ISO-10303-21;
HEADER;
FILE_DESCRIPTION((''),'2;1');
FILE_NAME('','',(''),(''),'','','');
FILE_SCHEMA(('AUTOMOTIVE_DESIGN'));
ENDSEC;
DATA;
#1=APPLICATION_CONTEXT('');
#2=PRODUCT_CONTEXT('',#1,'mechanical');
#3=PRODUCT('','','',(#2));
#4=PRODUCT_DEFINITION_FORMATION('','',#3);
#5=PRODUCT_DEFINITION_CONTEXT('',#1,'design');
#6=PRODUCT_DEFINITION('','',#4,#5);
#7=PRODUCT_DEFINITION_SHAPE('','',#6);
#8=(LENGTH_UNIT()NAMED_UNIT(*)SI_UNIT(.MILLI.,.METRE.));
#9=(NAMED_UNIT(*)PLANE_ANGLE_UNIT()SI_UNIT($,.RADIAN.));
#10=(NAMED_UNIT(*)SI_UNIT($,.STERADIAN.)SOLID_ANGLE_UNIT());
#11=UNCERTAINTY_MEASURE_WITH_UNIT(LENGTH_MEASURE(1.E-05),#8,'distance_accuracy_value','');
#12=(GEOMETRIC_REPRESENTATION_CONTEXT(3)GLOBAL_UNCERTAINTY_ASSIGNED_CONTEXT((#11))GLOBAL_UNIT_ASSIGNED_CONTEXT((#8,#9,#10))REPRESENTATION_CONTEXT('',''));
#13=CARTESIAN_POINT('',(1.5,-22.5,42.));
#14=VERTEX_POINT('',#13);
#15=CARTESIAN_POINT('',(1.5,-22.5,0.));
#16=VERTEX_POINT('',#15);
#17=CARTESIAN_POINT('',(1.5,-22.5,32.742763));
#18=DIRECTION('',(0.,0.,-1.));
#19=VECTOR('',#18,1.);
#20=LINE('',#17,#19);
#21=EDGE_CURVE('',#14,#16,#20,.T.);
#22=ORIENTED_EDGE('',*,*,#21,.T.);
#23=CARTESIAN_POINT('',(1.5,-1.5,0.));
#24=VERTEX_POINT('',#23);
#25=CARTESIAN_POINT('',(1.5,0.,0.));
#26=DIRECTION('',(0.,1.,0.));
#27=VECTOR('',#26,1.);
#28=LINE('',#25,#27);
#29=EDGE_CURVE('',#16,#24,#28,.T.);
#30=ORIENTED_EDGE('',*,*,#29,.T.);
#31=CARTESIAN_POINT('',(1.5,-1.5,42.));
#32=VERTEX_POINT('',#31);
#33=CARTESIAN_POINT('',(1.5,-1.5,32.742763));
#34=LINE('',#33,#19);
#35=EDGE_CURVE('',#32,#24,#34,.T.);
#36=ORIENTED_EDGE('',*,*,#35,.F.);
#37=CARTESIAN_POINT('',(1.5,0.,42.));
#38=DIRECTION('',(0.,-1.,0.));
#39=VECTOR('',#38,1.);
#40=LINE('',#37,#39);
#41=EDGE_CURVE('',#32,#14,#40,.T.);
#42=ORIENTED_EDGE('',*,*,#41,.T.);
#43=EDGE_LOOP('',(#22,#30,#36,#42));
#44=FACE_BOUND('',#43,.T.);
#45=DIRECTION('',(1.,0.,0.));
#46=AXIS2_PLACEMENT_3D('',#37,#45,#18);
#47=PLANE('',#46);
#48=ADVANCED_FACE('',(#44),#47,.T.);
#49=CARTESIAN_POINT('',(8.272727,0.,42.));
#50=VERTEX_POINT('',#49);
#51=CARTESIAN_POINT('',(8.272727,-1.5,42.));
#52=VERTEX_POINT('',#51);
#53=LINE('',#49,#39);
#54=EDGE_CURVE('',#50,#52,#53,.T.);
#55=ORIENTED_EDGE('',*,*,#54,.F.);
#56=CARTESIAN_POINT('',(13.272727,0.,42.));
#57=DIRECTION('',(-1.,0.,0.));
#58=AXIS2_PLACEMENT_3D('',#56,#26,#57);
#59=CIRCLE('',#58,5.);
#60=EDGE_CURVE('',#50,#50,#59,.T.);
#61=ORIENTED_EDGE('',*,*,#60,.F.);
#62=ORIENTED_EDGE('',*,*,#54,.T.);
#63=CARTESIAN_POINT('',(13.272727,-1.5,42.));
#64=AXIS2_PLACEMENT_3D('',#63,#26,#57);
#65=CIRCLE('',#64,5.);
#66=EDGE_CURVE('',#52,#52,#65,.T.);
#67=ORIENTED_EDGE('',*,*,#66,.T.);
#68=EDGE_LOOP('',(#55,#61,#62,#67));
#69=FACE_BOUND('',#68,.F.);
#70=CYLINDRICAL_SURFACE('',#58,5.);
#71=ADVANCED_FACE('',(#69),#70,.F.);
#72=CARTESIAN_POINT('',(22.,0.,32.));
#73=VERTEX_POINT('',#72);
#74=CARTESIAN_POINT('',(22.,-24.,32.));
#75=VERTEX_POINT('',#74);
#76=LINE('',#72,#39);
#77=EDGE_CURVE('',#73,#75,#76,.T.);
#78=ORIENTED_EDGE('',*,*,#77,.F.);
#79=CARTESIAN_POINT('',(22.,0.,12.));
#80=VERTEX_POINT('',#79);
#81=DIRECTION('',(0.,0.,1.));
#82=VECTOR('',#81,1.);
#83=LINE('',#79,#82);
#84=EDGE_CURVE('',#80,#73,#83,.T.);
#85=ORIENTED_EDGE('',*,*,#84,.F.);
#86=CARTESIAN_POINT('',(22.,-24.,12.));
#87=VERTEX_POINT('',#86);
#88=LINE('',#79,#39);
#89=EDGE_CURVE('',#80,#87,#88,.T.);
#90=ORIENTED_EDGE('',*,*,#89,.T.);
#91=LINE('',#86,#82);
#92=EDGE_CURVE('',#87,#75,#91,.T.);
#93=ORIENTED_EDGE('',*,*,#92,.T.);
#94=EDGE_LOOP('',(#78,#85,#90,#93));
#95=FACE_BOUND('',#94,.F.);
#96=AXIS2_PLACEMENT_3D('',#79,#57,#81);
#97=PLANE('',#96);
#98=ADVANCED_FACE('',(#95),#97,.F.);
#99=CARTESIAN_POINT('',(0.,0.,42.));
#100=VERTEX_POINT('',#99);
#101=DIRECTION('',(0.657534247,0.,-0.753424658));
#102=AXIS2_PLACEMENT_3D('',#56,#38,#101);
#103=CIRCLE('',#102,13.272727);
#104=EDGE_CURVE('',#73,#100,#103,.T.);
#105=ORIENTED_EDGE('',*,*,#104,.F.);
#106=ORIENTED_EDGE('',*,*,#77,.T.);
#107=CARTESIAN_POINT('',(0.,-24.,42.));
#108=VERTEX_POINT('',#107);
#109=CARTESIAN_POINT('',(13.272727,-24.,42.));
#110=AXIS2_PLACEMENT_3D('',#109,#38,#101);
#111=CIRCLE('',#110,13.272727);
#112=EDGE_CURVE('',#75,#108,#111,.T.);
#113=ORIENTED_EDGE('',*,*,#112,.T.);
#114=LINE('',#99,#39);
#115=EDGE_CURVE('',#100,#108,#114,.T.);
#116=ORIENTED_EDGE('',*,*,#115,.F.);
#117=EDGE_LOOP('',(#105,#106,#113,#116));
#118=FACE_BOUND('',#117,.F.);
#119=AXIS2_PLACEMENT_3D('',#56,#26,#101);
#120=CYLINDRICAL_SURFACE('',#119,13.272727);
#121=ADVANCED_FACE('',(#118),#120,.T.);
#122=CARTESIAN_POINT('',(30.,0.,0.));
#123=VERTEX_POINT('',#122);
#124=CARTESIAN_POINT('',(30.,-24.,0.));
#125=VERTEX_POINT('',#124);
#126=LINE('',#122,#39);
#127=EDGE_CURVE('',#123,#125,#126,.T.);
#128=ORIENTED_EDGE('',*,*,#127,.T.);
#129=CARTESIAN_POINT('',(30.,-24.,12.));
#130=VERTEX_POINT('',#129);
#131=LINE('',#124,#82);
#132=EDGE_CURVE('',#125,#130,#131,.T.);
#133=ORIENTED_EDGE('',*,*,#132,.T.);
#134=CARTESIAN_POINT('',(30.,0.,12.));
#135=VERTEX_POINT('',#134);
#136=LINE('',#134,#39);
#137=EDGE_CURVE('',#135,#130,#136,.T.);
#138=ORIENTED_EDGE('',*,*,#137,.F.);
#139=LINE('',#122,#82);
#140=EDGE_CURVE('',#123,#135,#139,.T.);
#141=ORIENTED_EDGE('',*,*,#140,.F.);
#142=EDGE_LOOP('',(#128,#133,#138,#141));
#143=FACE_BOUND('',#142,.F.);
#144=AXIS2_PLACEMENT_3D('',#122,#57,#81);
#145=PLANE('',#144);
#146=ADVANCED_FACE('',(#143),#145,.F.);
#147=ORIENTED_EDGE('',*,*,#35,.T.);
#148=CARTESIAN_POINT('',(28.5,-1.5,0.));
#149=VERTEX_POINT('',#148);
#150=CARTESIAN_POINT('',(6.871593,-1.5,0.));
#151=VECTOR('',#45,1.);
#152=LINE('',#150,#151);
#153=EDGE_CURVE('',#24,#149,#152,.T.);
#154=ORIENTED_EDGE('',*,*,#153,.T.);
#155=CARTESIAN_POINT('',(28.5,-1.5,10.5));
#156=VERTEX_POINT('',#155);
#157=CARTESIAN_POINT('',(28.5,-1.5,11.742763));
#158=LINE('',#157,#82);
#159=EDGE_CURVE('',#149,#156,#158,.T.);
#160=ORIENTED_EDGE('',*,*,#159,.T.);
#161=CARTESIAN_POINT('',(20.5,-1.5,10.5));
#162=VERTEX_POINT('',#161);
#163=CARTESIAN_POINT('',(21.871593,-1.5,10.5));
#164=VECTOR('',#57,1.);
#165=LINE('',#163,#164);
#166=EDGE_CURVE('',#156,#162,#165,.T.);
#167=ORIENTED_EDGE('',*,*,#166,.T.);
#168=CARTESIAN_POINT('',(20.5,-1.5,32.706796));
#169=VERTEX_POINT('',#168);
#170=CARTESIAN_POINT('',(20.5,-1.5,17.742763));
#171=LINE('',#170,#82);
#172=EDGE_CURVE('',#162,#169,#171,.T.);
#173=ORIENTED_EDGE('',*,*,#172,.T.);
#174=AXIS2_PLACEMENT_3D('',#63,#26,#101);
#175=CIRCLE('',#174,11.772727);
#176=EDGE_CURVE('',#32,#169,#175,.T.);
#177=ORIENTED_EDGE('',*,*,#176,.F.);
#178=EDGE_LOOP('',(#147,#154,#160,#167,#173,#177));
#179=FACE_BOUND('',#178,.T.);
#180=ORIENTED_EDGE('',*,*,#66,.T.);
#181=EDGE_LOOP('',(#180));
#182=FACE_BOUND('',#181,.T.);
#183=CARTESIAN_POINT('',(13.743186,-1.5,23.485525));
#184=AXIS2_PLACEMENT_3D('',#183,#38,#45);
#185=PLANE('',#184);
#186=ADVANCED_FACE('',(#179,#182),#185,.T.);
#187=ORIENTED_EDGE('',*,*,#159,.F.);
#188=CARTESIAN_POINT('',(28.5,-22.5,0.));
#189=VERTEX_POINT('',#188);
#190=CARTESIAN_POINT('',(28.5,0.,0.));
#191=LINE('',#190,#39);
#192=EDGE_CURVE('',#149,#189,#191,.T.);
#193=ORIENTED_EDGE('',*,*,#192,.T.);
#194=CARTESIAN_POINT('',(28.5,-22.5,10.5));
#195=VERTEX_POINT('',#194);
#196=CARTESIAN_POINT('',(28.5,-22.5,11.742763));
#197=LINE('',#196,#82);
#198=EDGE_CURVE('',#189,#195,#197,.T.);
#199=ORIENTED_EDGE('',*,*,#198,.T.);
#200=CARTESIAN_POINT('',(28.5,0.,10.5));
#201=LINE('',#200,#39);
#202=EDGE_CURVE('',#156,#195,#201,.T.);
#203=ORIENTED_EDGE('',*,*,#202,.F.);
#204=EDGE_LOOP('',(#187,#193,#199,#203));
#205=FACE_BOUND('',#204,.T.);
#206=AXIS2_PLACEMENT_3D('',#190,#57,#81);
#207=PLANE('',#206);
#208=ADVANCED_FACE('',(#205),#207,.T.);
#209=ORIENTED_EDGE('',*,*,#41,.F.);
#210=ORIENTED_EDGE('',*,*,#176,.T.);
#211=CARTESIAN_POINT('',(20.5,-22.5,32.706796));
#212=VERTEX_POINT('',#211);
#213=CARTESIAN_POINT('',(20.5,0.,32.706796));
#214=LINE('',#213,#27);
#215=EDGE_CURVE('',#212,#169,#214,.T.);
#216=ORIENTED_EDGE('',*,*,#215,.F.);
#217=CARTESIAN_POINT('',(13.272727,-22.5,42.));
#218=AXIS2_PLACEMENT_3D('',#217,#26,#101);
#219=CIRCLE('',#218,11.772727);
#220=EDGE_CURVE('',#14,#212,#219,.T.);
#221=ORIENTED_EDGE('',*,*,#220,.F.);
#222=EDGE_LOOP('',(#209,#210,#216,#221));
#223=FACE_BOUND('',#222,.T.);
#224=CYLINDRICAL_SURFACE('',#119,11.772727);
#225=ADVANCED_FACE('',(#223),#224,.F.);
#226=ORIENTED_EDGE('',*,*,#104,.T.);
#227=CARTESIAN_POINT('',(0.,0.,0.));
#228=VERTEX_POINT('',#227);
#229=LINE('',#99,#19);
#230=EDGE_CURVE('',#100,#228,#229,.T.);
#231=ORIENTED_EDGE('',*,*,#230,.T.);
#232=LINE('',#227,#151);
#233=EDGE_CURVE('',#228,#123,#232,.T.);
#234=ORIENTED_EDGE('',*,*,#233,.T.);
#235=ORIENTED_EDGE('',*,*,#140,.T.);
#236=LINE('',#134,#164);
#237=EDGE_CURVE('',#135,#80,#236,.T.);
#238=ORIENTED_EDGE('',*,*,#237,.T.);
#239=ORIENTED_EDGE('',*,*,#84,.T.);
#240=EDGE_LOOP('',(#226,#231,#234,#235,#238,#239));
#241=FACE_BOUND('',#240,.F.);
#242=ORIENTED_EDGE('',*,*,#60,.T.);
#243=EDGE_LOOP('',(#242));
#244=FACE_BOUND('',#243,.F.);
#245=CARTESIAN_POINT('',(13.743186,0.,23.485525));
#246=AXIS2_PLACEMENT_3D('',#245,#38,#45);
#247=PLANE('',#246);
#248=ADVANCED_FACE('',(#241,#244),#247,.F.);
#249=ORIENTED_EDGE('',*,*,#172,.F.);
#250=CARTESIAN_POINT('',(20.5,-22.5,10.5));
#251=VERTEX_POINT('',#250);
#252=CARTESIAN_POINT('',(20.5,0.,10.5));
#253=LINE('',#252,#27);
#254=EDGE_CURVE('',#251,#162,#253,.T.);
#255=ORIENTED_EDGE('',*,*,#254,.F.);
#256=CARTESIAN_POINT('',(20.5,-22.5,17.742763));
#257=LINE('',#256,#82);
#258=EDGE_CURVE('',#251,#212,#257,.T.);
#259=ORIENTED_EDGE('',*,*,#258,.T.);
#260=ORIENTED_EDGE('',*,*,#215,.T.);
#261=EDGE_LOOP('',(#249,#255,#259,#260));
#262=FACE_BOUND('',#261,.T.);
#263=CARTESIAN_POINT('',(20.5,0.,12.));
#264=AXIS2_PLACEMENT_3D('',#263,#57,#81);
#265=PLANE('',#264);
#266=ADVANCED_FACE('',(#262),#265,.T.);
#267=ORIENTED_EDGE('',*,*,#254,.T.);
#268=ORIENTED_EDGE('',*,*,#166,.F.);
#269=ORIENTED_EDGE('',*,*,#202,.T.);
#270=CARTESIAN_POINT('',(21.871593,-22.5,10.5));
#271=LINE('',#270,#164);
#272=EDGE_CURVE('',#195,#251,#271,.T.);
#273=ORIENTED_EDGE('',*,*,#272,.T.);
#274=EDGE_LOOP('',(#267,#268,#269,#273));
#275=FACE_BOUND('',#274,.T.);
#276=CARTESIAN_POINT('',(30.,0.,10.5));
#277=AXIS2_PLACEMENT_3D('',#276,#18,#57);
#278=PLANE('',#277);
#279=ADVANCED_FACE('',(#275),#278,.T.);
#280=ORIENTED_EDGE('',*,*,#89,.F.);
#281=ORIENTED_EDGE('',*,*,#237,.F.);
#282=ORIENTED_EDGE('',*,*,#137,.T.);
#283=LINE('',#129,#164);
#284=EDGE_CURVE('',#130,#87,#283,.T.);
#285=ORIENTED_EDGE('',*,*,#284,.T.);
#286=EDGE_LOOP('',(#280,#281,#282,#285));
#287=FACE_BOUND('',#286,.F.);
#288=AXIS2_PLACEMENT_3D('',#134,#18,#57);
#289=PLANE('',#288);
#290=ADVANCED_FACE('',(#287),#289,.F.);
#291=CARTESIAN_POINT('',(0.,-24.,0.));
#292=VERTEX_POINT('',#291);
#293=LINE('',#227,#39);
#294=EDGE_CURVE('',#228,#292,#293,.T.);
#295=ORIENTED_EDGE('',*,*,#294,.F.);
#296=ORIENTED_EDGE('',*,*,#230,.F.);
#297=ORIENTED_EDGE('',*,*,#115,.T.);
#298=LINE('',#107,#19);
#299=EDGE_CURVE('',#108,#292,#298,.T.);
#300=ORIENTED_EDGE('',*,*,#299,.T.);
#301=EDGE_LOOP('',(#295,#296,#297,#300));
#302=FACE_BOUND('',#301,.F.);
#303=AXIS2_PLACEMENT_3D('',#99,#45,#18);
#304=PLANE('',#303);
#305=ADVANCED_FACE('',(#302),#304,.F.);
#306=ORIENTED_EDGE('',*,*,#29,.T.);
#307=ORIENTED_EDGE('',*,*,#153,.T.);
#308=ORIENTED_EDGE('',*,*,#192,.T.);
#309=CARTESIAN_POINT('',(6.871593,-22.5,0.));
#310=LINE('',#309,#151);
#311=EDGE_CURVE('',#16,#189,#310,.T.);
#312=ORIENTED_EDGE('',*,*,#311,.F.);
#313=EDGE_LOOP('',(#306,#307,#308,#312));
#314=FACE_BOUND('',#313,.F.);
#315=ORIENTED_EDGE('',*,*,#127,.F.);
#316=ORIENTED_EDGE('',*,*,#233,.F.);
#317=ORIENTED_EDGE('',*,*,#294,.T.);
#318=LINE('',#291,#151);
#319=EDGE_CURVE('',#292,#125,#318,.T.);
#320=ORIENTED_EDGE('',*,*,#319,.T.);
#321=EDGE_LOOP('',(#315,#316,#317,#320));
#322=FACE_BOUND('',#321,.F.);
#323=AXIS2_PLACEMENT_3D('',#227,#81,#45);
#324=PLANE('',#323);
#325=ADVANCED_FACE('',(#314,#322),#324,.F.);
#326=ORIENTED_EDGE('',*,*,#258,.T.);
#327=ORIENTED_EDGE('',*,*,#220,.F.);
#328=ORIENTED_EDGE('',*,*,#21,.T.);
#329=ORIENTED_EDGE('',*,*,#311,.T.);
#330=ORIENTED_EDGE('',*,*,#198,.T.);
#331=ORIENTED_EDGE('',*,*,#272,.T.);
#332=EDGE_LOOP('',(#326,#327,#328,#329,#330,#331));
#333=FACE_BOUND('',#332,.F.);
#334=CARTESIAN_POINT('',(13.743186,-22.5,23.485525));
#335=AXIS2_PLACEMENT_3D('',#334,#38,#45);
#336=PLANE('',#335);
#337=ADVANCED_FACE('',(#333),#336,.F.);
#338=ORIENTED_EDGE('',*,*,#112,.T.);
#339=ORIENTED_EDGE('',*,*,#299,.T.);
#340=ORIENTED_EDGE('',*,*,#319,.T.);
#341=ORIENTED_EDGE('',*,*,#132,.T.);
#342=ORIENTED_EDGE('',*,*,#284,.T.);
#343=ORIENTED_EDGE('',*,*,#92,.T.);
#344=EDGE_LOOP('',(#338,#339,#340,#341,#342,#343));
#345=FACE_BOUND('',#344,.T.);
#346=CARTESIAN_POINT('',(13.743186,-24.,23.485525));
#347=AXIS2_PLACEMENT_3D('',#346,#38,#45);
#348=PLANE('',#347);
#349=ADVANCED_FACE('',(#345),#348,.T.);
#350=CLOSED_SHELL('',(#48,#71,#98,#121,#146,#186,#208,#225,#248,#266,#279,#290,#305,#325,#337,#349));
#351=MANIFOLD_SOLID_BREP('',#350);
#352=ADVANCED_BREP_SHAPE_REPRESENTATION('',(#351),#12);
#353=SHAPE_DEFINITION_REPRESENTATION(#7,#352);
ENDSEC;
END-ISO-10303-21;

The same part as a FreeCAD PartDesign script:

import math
import FreeCAD as App
import Part
import Sketcher
from FreeCAD import Vector


def faces_at(feature, points):
    """Names of the faces that lie closest to the given points."""
    faces = feature.Shape.Faces
    near = lambda p: min(range(len(faces)), key=lambda i: faces[i].distToShape(Part.Vertex(*p))[0])
    return sorted({f"Face{near(p) + 1}" for p in points})

doc = App.newDocument("Part")
body = doc.addObject("PartDesign::Body", "Body")

# Sketch on XZ plane
sketch1 = body.newObject("Sketcher::SketchObject", "Sketch")
sketch1.AttachmentSupport = (doc.getObject("XZ_Plane"), [""])
sketch1.MapMode = "FlatFace"
sketch1.addGeometry([
    Part.LineSegment(Vector(0, 42, 0), Vector(0, 0, 0)),  # 0
    Part.LineSegment(Vector(0, 0, 0), Vector(30, 0, 0)),  # 1
    Part.LineSegment(Vector(30, 0, 0), Vector(30, 12, 0)),  # 2
    Part.LineSegment(Vector(30, 12, 0), Vector(22, 12, 0)),  # 3
    Part.LineSegment(Vector(22, 12, 0), Vector(22, 32, 0)),  # 4
    Part.ArcOfCircle(Part.Circle(Vector(13, 42, 0), Vector(0, 0, 1), 13), math.radians(-49), math.radians(180)),  # 5
], False)
sketch1.addConstraint([
    Sketcher.Constraint("Coincident", 0, 2, 1, 1),
    Sketcher.Constraint("Coincident", 1, 2, 2, 1),
    Sketcher.Constraint("Coincident", 2, 2, 3, 1),
    Sketcher.Constraint("Coincident", 3, 2, 4, 1),
    Sketcher.Constraint("Coincident", 4, 2, 5, 1),
    Sketcher.Constraint("Tangent", 5, 2, 0, 1),
    Sketcher.Constraint("Vertical", 0),
    Sketcher.Constraint("Horizontal", 1),
    Sketcher.Constraint("Vertical", 2),
    Sketcher.Constraint("Horizontal", 3),
    Sketcher.Constraint("Vertical", 4),
    Sketcher.Constraint("Coincident", 0, 2, -1, 1),
    Sketcher.Constraint("DistanceX", 1, 1, 1, 2, 30.0),
    Sketcher.Constraint("DistanceX", 3, 2, 3, 1, 8.0),
    Sketcher.Constraint("DistanceY", 0, 2, 0, 1, 42.0),
    Sketcher.Constraint("DistanceY", 2, 1, 2, 2, 12.0),
    Sketcher.Constraint("DistanceY", 4, 1, 4, 2, 20.0),
])
pad1 = body.newObject("PartDesign::Pad", "Pad")
pad1.Profile = sketch1
pad1.Length = 24
doc.recompute()

thickness = body.newObject("PartDesign::Thickness", "Thickness")
thickness.Base = (pad1, faces_at(pad1, [(15, -12, 0)]))
thickness.Value = 1.5
thickness.Reversed = True
thickness.Join = "Intersection"

# Sketch on XZ plane
sketch2 = body.newObject("Sketcher::SketchObject", "Sketch001")
sketch2.AttachmentSupport = (doc.getObject("XZ_Plane"), [""])
sketch2.MapMode = "FlatFace"
sketch2.addGeometry(Part.Circle(Vector(13, 42, 0), Vector(0, 0, 1), 5), False)
sketch2.addConstraint([
    Sketcher.Constraint("Diameter", 0, 10.0),
    Sketcher.Constraint("DistanceY", -1, 1, 0, 3, 42.0),
    Sketcher.Constraint("DistanceX", -1, 1, 0, 3, 13.272727),
])
pocket1 = body.newObject("PartDesign::Pocket", "Pocket")
pocket1.Profile = sketch2
pocket1.Length = 5
pocket1.Reversed = True

doc.recompute()
